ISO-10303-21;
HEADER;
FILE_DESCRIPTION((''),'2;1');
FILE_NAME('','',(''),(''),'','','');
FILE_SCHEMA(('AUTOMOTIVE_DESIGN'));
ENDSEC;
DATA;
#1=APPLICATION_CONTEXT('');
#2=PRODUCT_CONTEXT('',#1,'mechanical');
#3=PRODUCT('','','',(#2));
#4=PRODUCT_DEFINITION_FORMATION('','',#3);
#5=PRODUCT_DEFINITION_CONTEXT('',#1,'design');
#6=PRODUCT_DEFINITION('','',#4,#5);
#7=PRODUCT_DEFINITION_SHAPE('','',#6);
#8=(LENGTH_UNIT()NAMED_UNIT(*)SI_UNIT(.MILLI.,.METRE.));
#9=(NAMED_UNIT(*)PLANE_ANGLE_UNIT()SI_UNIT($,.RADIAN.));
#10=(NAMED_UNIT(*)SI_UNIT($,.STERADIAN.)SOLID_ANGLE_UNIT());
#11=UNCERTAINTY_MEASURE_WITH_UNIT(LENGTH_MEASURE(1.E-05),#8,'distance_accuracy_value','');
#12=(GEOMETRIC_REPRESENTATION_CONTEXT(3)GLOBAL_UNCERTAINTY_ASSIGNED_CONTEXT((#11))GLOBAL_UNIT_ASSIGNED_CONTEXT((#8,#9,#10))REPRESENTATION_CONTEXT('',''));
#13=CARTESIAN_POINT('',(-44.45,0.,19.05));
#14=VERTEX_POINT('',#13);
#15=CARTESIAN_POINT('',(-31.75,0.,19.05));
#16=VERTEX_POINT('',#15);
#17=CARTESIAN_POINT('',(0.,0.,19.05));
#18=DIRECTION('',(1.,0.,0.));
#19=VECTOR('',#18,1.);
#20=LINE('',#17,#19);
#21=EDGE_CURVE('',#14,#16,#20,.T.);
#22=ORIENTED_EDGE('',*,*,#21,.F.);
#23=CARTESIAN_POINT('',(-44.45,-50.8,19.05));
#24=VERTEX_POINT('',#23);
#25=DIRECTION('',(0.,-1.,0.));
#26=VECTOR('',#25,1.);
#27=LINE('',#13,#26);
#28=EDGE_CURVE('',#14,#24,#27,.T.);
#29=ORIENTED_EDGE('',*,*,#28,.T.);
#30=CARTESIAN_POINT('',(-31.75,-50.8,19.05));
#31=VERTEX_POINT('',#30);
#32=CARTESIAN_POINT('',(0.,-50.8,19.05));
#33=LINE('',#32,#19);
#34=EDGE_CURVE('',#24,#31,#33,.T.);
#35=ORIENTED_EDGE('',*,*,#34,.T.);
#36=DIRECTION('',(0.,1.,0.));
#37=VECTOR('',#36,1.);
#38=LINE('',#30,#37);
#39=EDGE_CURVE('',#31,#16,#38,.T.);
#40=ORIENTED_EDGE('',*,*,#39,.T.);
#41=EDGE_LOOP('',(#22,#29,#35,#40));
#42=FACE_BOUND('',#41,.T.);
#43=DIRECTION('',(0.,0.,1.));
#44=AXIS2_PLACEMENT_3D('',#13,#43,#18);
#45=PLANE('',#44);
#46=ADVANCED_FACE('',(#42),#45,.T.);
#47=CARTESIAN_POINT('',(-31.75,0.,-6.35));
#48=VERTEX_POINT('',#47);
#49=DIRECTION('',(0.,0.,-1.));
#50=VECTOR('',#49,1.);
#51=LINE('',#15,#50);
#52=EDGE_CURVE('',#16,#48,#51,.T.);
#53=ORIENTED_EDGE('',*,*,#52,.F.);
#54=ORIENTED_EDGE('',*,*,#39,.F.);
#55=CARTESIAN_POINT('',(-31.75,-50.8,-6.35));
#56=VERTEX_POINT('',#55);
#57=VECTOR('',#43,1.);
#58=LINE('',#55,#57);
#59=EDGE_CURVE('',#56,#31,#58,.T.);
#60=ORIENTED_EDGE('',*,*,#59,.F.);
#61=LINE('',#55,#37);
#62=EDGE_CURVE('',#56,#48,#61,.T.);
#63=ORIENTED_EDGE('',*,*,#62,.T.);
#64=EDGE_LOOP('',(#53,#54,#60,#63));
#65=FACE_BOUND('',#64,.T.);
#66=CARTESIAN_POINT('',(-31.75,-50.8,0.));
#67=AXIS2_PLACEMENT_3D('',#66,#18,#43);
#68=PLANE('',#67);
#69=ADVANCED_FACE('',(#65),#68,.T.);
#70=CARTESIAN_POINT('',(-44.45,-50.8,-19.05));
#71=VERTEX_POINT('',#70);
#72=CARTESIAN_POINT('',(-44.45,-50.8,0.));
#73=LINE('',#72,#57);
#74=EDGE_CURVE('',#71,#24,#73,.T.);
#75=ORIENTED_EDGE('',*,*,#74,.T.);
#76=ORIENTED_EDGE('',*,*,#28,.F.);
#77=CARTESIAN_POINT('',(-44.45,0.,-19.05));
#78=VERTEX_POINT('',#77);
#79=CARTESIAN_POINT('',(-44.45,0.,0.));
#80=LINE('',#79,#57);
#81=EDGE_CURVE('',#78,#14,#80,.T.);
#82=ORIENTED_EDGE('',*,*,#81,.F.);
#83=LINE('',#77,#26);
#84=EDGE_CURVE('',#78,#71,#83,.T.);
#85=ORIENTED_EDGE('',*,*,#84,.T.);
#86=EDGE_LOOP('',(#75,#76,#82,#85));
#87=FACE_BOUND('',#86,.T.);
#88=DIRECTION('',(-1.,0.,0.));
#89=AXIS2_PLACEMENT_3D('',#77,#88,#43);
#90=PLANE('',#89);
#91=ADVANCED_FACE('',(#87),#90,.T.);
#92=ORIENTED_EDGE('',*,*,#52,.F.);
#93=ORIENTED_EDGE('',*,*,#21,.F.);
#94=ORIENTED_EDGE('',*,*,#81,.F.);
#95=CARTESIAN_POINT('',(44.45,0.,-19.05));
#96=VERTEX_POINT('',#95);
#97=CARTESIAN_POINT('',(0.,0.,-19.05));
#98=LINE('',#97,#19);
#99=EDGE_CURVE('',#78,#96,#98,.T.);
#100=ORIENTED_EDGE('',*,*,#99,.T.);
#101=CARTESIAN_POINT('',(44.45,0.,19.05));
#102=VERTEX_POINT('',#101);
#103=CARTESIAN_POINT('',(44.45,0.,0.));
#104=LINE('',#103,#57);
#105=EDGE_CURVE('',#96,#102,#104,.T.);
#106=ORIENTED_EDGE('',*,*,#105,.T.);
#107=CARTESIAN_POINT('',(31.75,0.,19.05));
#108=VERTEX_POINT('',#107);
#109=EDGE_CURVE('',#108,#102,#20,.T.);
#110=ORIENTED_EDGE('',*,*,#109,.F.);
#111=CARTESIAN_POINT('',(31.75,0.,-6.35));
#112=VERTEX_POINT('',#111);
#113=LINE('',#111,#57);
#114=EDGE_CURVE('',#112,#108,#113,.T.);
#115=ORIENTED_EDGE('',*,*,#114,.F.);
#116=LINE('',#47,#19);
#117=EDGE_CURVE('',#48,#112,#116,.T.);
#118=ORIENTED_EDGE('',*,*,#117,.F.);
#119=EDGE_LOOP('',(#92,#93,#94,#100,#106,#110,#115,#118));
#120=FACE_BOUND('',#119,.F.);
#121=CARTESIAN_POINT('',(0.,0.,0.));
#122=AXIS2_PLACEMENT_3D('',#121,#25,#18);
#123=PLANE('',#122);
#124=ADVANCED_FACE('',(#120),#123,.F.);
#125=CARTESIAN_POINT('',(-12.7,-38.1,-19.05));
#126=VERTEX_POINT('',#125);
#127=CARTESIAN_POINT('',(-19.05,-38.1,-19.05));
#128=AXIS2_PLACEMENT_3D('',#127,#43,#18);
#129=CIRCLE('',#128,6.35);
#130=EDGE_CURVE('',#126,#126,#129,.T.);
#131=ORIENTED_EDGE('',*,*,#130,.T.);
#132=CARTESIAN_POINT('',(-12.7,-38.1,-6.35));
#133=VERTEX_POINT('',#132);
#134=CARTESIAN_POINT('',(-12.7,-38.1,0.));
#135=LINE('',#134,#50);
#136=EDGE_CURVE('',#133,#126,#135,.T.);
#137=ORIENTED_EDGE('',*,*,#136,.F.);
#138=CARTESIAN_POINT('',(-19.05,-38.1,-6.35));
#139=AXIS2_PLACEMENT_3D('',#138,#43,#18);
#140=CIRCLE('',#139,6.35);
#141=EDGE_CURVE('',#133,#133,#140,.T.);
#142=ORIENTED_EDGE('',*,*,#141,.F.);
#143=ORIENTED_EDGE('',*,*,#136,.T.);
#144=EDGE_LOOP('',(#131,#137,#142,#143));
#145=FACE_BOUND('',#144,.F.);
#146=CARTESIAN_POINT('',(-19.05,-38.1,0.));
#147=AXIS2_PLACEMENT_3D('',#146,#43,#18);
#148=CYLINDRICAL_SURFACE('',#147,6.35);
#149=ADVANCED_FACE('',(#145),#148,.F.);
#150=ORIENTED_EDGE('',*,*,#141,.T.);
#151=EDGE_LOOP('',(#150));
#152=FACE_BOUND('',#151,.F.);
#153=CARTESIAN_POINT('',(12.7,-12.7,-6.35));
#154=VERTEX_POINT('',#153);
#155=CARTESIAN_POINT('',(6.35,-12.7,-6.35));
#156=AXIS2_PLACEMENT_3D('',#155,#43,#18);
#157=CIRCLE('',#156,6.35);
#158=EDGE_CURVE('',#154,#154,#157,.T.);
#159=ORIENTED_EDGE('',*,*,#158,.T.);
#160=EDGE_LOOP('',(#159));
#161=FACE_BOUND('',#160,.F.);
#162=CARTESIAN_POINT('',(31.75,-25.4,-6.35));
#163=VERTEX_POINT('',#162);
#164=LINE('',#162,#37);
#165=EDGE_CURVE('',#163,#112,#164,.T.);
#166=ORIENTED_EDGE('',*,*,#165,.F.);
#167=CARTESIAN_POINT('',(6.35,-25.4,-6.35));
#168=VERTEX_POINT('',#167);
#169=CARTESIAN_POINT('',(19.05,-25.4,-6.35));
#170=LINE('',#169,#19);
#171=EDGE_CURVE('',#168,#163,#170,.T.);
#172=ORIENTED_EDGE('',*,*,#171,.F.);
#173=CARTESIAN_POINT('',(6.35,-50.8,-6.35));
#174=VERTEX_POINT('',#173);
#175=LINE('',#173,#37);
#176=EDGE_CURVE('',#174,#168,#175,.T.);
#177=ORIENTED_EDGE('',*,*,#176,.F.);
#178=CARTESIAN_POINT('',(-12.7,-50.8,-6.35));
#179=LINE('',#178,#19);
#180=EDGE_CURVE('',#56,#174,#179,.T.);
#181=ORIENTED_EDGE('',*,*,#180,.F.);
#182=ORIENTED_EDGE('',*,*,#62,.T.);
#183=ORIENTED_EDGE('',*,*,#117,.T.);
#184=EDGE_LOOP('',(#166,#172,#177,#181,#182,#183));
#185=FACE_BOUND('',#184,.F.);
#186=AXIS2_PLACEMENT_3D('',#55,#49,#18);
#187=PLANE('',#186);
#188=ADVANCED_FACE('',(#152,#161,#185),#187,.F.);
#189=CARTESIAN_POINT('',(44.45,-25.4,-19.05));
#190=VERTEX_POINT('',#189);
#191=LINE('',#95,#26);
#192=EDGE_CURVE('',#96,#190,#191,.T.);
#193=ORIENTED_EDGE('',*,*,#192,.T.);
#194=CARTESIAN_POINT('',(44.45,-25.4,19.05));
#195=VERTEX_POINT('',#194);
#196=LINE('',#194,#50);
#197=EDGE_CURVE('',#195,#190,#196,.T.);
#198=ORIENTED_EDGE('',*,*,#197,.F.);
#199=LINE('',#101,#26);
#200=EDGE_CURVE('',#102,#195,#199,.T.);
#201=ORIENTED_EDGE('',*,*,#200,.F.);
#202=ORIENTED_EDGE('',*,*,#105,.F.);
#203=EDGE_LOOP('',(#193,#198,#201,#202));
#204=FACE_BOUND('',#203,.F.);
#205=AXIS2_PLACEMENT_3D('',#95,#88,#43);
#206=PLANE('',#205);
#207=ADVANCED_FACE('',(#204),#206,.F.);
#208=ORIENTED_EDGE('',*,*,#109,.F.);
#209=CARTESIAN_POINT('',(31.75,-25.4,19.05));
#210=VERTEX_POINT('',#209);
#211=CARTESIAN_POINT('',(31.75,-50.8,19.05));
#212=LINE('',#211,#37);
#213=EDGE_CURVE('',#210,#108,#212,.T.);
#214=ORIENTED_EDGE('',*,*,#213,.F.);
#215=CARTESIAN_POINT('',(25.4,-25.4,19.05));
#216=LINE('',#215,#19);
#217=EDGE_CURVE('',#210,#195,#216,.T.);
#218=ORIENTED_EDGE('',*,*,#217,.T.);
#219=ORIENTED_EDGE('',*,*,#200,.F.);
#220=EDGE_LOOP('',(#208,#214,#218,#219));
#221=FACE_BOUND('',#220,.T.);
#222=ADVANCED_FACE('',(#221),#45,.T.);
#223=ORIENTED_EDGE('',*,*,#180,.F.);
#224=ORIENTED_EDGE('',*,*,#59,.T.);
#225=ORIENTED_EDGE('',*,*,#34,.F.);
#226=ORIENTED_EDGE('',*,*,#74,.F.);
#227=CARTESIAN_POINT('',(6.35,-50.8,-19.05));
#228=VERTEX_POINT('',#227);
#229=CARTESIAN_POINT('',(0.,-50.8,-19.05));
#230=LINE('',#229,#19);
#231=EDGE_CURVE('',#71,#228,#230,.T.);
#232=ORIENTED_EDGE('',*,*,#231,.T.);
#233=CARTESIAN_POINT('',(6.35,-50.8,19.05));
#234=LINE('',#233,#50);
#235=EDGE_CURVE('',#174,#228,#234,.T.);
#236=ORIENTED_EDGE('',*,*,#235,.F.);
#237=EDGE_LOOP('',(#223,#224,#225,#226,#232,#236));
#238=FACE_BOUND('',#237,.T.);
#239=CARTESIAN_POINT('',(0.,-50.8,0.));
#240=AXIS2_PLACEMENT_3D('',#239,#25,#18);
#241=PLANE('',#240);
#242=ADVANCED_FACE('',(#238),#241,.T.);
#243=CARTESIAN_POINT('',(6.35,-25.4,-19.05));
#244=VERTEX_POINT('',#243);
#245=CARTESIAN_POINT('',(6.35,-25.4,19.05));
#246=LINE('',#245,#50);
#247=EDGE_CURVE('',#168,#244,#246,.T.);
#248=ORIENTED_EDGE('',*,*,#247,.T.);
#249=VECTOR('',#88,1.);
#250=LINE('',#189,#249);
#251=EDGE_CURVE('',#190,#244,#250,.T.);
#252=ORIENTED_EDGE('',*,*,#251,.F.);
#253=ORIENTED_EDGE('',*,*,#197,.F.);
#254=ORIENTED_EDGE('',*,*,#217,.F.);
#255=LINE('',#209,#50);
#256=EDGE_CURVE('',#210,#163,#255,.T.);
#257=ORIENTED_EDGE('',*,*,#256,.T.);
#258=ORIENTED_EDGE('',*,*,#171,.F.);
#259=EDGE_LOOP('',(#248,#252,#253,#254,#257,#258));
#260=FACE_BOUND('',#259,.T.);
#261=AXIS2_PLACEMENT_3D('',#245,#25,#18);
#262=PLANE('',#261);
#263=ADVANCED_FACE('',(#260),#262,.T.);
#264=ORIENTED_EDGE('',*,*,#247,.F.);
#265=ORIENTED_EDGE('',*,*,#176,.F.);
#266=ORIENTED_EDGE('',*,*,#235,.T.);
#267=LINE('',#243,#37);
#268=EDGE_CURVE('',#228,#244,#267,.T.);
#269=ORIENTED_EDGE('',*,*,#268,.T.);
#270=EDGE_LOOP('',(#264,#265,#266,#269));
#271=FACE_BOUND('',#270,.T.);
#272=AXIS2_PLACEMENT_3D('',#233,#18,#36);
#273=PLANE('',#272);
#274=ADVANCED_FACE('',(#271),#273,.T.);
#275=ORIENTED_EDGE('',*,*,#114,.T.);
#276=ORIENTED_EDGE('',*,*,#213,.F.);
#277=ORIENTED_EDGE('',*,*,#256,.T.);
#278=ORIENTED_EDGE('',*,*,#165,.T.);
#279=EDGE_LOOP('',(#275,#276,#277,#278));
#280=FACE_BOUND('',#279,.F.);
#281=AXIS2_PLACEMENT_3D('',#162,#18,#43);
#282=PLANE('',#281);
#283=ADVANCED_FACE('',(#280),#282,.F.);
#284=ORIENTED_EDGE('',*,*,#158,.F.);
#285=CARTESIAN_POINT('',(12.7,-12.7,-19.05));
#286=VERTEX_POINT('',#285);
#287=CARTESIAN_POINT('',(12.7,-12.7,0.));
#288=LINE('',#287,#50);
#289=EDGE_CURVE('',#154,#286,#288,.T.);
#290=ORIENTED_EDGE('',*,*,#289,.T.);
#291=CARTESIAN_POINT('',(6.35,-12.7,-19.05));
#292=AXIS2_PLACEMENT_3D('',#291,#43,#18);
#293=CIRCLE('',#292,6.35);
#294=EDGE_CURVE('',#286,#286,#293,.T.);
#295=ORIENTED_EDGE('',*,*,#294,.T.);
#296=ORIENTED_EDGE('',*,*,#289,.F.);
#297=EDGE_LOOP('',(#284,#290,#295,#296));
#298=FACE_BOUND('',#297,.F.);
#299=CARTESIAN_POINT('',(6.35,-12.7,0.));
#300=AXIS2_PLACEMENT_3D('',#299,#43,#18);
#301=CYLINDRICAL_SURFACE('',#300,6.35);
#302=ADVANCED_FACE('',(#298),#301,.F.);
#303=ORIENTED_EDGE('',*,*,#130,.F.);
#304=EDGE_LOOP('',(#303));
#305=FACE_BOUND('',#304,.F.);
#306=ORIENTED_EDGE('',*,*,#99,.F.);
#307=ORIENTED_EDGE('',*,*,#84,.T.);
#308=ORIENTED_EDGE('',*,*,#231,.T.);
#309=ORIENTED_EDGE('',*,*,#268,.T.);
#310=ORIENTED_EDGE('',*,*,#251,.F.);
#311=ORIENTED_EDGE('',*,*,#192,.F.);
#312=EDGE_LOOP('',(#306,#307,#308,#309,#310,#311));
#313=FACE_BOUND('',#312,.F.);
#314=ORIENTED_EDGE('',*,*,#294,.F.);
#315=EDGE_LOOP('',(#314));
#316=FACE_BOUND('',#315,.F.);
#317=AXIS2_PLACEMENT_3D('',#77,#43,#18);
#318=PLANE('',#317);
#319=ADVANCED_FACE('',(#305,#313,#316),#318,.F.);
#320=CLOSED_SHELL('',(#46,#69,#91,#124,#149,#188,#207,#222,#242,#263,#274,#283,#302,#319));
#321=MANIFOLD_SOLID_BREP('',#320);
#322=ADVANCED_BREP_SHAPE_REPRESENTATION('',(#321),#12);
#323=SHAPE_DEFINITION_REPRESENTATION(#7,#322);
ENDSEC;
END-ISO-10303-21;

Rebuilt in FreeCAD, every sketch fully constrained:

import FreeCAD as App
import Part
import Sketcher
from FreeCAD import Vector
Q = App.Units.Quantity

doc = App.newDocument("Part")
body = doc.addObject("PartDesign::Body", "Body")

sketch1 = body.newObject("Sketcher::SketchObject", "Sketch")
sketch1.AttachmentSupport = (doc.getObject("XZ_Plane"), [""])
sketch1.MapMode = "FlatFace"
sketch1.addGeometry([
    Part.LineSegment(Vector(-44, 19, 0), Vector(-44, -19, 0)),
    Part.LineSegment(Vector(-44, -19, 0), Vector(44, -19, 0)),
    Part.LineSegment(Vector(44, -19, 0), Vector(44, 19, 0)),
    Part.LineSegment(Vector(44, 19, 0), Vector(-44, 19, 0)),
], False)
sketch1.addConstraint([
    Sketcher.Constraint("Coincident", 0, 2, 1, 1),
    Sketcher.Constraint("Coincident", 1, 2, 2, 1),
    Sketcher.Constraint("Coincident", 2, 2, 3, 1),
    Sketcher.Constraint("Coincident", 3, 2, 0, 1),
    Sketcher.Constraint("Vertical", 0),
    Sketcher.Constraint("Horizontal", 1),
    Sketcher.Constraint("Vertical", 2),
    Sketcher.Constraint("Horizontal", 3),
    Sketcher.Constraint("Symmetric", 0, 2, 2, 2, -1, 1),
    Sketcher.Constraint("DistanceX", 1, 1, 1, 2, Q("3.5 in")),
    Sketcher.Constraint("DistanceY", 0, 2, 0, 1, Q("1.5 in")),
])
pad1 = body.newObject("PartDesign::Pad", "Pad")
pad1.Profile = sketch1
pad1.Length = Q("2 in")

sketch2 = body.newObject("Sketcher::SketchObject", "Sketch001")
sketch2.AttachmentSupport = (doc.getObject("XZ_Plane"), [""])
sketch2.MapMode = "FlatFace"
sketch2.AttachmentOffset = App.Placement(Vector(0, 0, 2 * 25.4), App.Rotation())
sketch2.addGeometry([
    Part.LineSegment(Vector(-32, 19, 0), Vector(-32, 0, 0)),
    Part.LineSegment(Vector(-32, 0, 0), Vector(32, 0, 0)),
    Part.LineSegment(Vector(32, 0, 0), Vector(32, 19, 0)),
    Part.LineSegment(Vector(32, 19, 0), Vector(-32, 19, 0)),
], False)
sketch2.addConstraint([
    Sketcher.Constraint("Coincident", 0, 2, 1, 1),
    Sketcher.Constraint("Coincident", 1, 2, 2, 1),
    Sketcher.Constraint("Coincident", 2, 2, 3, 1),
    Sketcher.Constraint("Coincident", 3, 2, 0, 1),
    Sketcher.Constraint("Vertical", 0),
    Sketcher.Constraint("Horizontal", 1),
    Sketcher.Constraint("Vertical", 2),
    Sketcher.Constraint("Horizontal", 3),
    Sketcher.Constraint("Symmetric", 0, 2, 1, 2, -1, 1),
    Sketcher.Constraint("DistanceX", 1, 1, 1, 2, Q("2.5 in")),
    Sketcher.Constraint("DistanceY", 0, 2, 0, 1, Q("0.75 in")),
])
pocket1 = body.newObject("PartDesign::Pocket", "Pocket")
pocket1.Profile = sketch2
pocket1.Type = "ThroughAll"

sketch3 = body.newObject("Sketcher::SketchObject", "Sketch002")
sketch3.AttachmentSupport = (doc.getObject("XY_Plane"), [""])
sketch3.MapMode = "FlatFace"
sketch3.AttachmentOffset = App.Placement(Vector(0, 0, 0.75 * 25.4), App.Rotation())
sketch3.addGeometry([
    Part.LineSegment(Vector(6, -25, 0), Vector(6, -51, 0)),
    Part.LineSegment(Vector(6, -51, 0), Vector(44, -51, 0)),
    Part.LineSegment(Vector(44, -51, 0), Vector(44, -25, 0)),
    Part.LineSegment(Vector(44, -25, 0), Vector(6, -25, 0)),
], False)
sketch3.addConstraint([
    Sketcher.Constraint("Coincident", 0, 2, 1, 1),
    Sketcher.Constraint("Coincident", 1, 2, 2, 1),
    Sketcher.Constraint("Coincident", 2, 2, 3, 1),
    Sketcher.Constraint("Coincident", 3, 2, 0, 1),
    Sketcher.Constraint("Vertical", 0),
    Sketcher.Constraint("Horizontal", 1),
    Sketcher.Constraint("Vertical", 2),
    Sketcher.Constraint("Horizontal", 3),
    Sketcher.Constraint("DistanceY", 0, 2, 0, 1, Q("1 in")),
    Sketcher.Constraint("DistanceX", 1, 1, 1, 2, Q("1.5 in")),
    Sketcher.Constraint("DistanceY", 0, 2, -1, 1, Q("2 in")),
    Sketcher.Constraint("DistanceX", -1, 1, 0, 2, Q("0.25 in")),
])
pocket2 = body.newObject("PartDesign::Pocket", "Pocket001")
pocket2.Profile = sketch3
pocket2.Type = "ThroughAll"

sketch4 = body.newObject("Sketcher::SketchObject", "Sketch003")
sketch4.AttachmentSupport = (doc.getObject("XY_Plane"), [""])
sketch4.MapMode = "FlatFace"
sketch4.addGeometry([
    Part.LineSegment(Vector(6, -25, 0), Vector(6, -51, 0)),
    Part.LineSegment(Vector(6, -51, 0), Vector(32, -51, 0)),
    Part.LineSegment(Vector(32, -51, 0), Vector(32, -25, 0)),
    Part.LineSegment(Vector(32, -25, 0), Vector(6, -25, 0)),
], False)
sketch4.addConstraint([
    Sketcher.Constraint("Coincident", 0, 2, 1, 1),
    Sketcher.Constraint("Coincident", 1, 2, 2, 1),
    Sketcher.Constraint("Coincident", 2, 2, 3, 1),
    Sketcher.Constraint("Coincident", 3, 2, 0, 1),
    Sketcher.Constraint("Vertical", 0),
    Sketcher.Constraint("Horizontal", 1),
    Sketcher.Constraint("Vertical", 2),
    Sketcher.Constraint("Horizontal", 3),
    Sketcher.Constraint("Equal", 3, 0),
    Sketcher.Constraint("DistanceX", 1, 1, 1, 2, Q("1 in")),
    Sketcher.Constraint("DistanceY", 0, 2, -1, 1, Q("2 in")),
    Sketcher.Constraint("DistanceX", -1, 1, 0, 2, Q("0.25 in")),
])
pocket3 = body.newObject("PartDesign::Pocket", "Pocket002")
pocket3.Profile = sketch4
pocket3.Type = "ThroughAll"

sketch5 = body.newObject("Sketcher::SketchObject", "Sketch004")
sketch5.AttachmentSupport = (doc.getObject("XY_Plane"), [""])
sketch5.MapMode = "FlatFace"
sketch5.addGeometry(Part.Circle(Vector(-19, -38, 0), Vector(0, 0, 1), 6), False)
sketch5.addConstraint([
    Sketcher.Constraint("Diameter", 0, Q("0.5 in")),
    Sketcher.Constraint("DistanceY", 0, 3, -1, 1, Q("1.5 in")),
    Sketcher.Constraint("DistanceX", 0, 3, -1, 1, Q("0.75 in")),
])
pocket4 = body.newObject("PartDesign::Pocket", "Pocket003")
pocket4.Profile = sketch5
pocket4.Type = "ThroughAll"

sketch6 = body.newObject("Sketcher::SketchObject", "Sketch005")
sketch6.AttachmentSupport = (doc.getObject("XY_Plane"), [""])
sketch6.MapMode = "FlatFace"
sketch6.addGeometry(Part.Circle(Vector(6, -13, 0), Vector(0, 0, 1), 6), False)
sketch6.addConstraint([
    Sketcher.Constraint("Diameter", 0, Q("0.5 in")),
    Sketcher.Constraint("DistanceY", 0, 3, -1, 1, Q("0.5 in")),
    Sketcher.Constraint("DistanceX", -1, 1, 0, 3, Q("0.25 in")),
])
pocket5 = body.newObject("PartDesign::Pocket", "Pocket004")
pocket5.Profile = sketch6
pocket5.Type = "ThroughAll"

sketch7 = body.newObject("Sketcher::SketchObject", "Sketch006")
sketch7.AttachmentSupport = (doc.getObject("XZ_Plane"), [""])
sketch7.MapMode = "FlatFace"
sketch7.AttachmentOffset = App.Placement(Vector(0, 0, 2 * 25.4), App.Rotation())
sketch7.addGeometry([
    Part.LineSegment(Vector(-32, 0, 0), Vector(-32, -6, 0)),
    Part.LineSegment(Vector(-32, -6, 0), Vector(6, -6, 0)),
    Part.LineSegment(Vector(6, -6, 0), Vector(6, 0, 0)),
    Part.LineSegment(Vector(6, 0, 0), Vector(-32, 0, 0)),
], False)
sketch7.addConstraint([
    Sketcher.Constraint("Coincident", 0, 2, 1, 1),
    Sketcher.Constraint("Coincident", 1, 2, 2, 1),
    Sketcher.Constraint("Coincident", 2, 2, 3, 1),
    Sketcher.Constraint("Coincident", 3, 2, 0, 1),
    Sketcher.Constraint("Vertical", 0),
    Sketcher.Constraint("Horizontal", 1),
    Sketcher.Constraint("Vertical", 2),
    Sketcher.Constraint("Horizontal", 3),
    Sketcher.Constraint("PointOnObject", 2, 2, -1),
    Sketcher.Constraint("DistanceX", 1, 1, 1, 2, Q("1.5 in")),
    Sketcher.Constraint("DistanceY", 0, 2, 0, 1, Q("0.25 in")),
    Sketcher.Constraint("DistanceX", 0, 2, -1, 1, Q("1.25 in")),
])
pocket6 = body.newObject("PartDesign::Pocket", "Pocket005")
pocket6.Profile = sketch7
pocket6.Type = "ThroughAll"

sketch8 = body.newObject("Sketcher::SketchObject", "Sketch007")
sketch8.AttachmentSupport = (doc.getObject("XZ_Plane"), [""])
sketch8.MapMode = "FlatFace"
sketch8.AttachmentOffset = App.Placement(Vector(0, 0, 1 * 25.4), App.Rotation())
sketch8.addGeometry([
    Part.LineSegment(Vector(6, 0, 0), Vector(6, -6, 0)),
    Part.LineSegment(Vector(6, -6, 0), Vector(32, -6, 0)),
    Part.LineSegment(Vector(32, -6, 0), Vector(32, 0, 0)),
    Part.LineSegment(Vector(32, 0, 0), Vector(6, 0, 0)),
], False)
sketch8.addConstraint([
    Sketcher.Constraint("Coincident", 0, 2, 1, 1),
    Sketcher.Constraint("Coincident", 1, 2, 2, 1),
    Sketcher.Constraint("Coincident", 2, 2, 3, 1),
    Sketcher.Constraint("Coincident", 3, 2, 0, 1),
    Sketcher.Constraint("Vertical", 0),
    Sketcher.Constraint("Horizontal", 1),
    Sketcher.Constraint("Vertical", 2),
    Sketcher.Constraint("Horizontal", 3),
    Sketcher.Constraint("PointOnObject", 2, 2, -1),
    Sketcher.Constraint("DistanceX", 1, 1, 1, 2, Q("1 in")),
    Sketcher.Constraint("DistanceY", 0, 2, 0, 1, Q("0.25 in")),
    Sketcher.Constraint("DistanceX", -1, 1, 0, 2, Q("0.25 in")),
])
pocket7 = body.newObject("PartDesign::Pocket", "Pocket006")
pocket7.Profile = sketch8
pocket7.Type = "ThroughAll"

doc.recompute()
